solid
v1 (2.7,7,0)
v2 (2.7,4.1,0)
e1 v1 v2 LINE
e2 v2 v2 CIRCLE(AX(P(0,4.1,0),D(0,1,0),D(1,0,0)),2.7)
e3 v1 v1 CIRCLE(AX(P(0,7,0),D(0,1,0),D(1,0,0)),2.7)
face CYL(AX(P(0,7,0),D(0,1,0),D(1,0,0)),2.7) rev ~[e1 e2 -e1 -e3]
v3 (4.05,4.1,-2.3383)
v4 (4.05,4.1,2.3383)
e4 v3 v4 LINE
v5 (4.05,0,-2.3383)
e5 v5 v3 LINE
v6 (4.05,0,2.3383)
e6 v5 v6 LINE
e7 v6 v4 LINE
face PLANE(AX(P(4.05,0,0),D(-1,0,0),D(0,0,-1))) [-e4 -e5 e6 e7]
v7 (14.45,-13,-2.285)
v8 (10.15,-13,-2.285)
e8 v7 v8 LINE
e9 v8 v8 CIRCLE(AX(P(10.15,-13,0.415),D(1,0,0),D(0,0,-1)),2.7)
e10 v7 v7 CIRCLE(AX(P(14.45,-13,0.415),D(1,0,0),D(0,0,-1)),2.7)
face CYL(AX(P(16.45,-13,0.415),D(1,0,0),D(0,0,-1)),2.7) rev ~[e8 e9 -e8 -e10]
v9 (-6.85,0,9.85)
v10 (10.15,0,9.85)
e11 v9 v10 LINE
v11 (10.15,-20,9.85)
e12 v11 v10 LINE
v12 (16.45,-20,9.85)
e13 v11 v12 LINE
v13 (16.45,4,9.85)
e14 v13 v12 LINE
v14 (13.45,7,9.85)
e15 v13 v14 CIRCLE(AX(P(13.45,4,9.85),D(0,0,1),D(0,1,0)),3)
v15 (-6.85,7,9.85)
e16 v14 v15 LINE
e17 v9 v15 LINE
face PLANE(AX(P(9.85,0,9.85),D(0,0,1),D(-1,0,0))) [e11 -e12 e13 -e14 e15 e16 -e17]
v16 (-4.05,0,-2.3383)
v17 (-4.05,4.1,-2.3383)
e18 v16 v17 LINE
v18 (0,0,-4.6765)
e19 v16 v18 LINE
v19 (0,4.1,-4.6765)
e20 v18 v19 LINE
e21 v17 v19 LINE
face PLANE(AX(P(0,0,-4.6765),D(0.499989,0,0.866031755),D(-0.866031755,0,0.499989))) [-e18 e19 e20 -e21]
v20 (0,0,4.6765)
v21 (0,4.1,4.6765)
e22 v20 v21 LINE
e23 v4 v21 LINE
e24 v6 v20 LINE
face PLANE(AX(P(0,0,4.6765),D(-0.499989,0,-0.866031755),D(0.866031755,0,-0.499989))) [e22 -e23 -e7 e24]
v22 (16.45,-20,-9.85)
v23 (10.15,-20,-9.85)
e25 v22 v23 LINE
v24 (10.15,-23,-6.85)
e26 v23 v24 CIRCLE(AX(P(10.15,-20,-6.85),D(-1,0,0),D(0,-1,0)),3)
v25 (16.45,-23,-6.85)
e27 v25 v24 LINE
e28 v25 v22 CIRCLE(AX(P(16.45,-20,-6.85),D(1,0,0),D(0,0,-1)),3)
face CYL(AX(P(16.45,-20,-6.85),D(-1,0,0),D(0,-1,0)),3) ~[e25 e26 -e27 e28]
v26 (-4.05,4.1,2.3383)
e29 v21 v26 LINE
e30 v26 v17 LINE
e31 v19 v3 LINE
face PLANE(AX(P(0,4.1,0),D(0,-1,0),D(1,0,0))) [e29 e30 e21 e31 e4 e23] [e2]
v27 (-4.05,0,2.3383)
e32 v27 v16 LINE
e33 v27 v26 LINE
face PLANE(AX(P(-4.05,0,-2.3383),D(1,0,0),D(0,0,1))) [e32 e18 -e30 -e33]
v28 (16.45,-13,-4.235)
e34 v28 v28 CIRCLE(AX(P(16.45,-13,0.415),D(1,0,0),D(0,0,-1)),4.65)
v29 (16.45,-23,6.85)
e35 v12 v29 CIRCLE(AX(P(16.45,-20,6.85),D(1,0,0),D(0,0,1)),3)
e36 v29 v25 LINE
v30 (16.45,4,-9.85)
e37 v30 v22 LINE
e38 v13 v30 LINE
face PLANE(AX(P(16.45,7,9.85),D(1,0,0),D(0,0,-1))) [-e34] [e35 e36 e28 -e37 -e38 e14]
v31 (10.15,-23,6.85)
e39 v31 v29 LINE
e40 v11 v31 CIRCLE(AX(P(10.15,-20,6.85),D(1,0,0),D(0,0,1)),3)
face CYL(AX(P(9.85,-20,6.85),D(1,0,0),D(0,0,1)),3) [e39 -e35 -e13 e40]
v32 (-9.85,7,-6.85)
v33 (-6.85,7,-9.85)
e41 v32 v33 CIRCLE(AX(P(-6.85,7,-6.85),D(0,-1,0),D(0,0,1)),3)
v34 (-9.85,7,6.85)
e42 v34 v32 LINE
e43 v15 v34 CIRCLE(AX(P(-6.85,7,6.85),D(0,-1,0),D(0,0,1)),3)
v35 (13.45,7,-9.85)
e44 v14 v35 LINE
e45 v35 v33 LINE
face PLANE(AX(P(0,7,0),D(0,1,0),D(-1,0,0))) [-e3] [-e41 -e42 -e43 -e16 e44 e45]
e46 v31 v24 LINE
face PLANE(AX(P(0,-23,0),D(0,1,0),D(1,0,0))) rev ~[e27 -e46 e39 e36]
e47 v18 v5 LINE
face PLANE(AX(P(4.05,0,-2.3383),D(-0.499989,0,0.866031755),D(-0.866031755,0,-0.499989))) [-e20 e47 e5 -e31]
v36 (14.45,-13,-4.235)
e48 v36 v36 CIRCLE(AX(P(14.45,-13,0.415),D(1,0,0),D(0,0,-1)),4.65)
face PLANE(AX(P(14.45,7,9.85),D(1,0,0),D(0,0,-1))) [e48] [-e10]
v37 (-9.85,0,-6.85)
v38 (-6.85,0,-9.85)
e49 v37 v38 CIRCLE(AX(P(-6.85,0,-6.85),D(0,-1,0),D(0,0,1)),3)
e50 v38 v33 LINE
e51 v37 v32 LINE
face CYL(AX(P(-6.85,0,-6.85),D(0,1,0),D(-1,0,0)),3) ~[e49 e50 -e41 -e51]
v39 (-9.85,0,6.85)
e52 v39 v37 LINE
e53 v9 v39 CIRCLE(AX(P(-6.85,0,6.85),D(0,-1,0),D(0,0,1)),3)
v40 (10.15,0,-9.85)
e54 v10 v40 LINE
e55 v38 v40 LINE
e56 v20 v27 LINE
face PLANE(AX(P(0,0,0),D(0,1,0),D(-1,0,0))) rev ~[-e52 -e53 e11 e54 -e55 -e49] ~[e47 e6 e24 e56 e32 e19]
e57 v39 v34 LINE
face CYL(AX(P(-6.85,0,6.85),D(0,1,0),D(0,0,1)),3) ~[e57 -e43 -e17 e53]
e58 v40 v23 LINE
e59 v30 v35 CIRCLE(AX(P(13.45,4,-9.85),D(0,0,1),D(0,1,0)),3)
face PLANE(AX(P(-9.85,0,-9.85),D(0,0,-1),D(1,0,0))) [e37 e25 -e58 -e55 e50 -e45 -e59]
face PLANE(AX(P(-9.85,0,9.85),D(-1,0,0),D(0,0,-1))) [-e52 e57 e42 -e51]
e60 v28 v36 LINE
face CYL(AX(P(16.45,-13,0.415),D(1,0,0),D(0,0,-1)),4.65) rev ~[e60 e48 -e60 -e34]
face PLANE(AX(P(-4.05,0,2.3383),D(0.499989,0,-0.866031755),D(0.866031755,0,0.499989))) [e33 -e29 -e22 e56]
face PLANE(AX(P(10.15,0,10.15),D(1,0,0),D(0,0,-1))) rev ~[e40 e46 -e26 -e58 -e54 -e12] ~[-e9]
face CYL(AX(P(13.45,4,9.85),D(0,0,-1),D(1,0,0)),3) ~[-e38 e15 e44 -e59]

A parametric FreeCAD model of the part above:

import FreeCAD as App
import Part
import Sketcher

V = App.Vector
Q = App.Units.Quantity


def edges_at(feature, points):
    """Names of the edges that pass closest to the given points."""
    edges = feature.Shape.Edges
    near = lambda p: min(range(len(edges)), key=lambda i: edges[i].distToShape(Part.Vertex(*p))[0])
    return sorted({f"Edge{near(p) + 1}" for p in points})

doc = App.newDocument("Part")
body = doc.addObject("PartDesign::Body", "Body")

sketch1 = body.newObject("Sketcher::SketchObject", "Sketch")
sketch1.AttachmentSupport = (doc.getObject("XZ_Plane"), [""])
sketch1.MapMode = "FlatFace"
sketch1.addGeometry([
    Part.LineSegment(V(-10, 10, 0), V(10, 10, 0)),
    Part.LineSegment(V(10, 10, 0), V(10, -10, 0)),
    Part.LineSegment(V(10, -10, 0), V(-10, -10, 0)),
    Part.LineSegment(V(-10, -10, 0), V(-10, 10, 0)),
], False)
sketch1.addConstraint([
    Sketcher.Constraint("Coincident", 0, 2, 1, 1),
    Sketcher.Constraint("Coincident", 1, 2, 2, 1),
    Sketcher.Constraint("Coincident", 2, 2, 3, 1),
    Sketcher.Constraint("Coincident", 3, 2, 0, 1),
    Sketcher.Constraint("Horizontal", 0),
    Sketcher.Constraint("Vertical", 1),
    Sketcher.Constraint("Horizontal", 2),
    Sketcher.Constraint("Vertical", 3),
    Sketcher.Constraint("Symmetric", 0, 2, 2, 2, -1, 1),
    Sketcher.Constraint("Equal", 2, 1),
    Sketcher.Constraint("DistanceX", 0, 1, 0, 2, 19.7),
])
pad1 = body.newObject("PartDesign::Pad", "Pad")
pad1.Profile = sketch1
pad1.Length = 7
pad1.Reversed = True

sketch2 = body.newObject("Sketcher::SketchObject", "Sketch001")
sketch2.AttachmentSupport = (doc.getObject("XZ_Plane"), [""])
sketch2.MapMode = "FlatFace"
sketch2.AttachmentOffset = App.Placement(V(0, 0, -7), App.Rotation())
sketch2.addGeometry([
    Part.LineSegment(V(10, -10, 0), V(10, 10, 0)),
    Part.LineSegment(V(10, 10, 0), V(16, 10, 0)),
    Part.LineSegment(V(16, 10, 0), V(16, -10, 0)),
    Part.LineSegment(V(16, -10, 0), V(10, -10, 0)),
], False)
sketch2.addConstraint([
    Sketcher.Constraint("Coincident", 0, 2, 1, 1),
    Sketcher.Constraint("Coincident", 1, 2, 2, 1),
    Sketcher.Constraint("Coincident", 2, 2, 3, 1),
    Sketcher.Constraint("Coincident", 3, 2, 0, 1),
    Sketcher.Constraint("Vertical", 0),
    Sketcher.Constraint("Horizontal", 1),
    Sketcher.Constraint("Vertical", 2),
    Sketcher.Constraint("Horizontal", 3),
    Sketcher.Constraint("DistanceX", 1, 1, 1, 2, 6.6),
    Sketcher.Constraint("DistanceY", 0, 1, 0, 2, 19.7),
    Sketcher.Constraint("DistanceX", -1, 1, 0, 2, 9.85),
    Sketcher.Constraint("DistanceY", -1, 1, 0, 2, 9.85),
])
pad2 = body.newObject("PartDesign::Pad", "Pad001")
pad2.Profile = sketch2
pad2.Length = 30

sketch3 = body.newObject("Sketcher::SketchObject", "Sketch002")
sketch3.AttachmentSupport = (doc.getObject("YZ_Plane"), [""])
sketch3.MapMode = "FlatFace"
sketch3.AttachmentOffset = App.Placement(V(0, 0, 16.45), App.Rotation())
sketch3.addGeometry(Part.Circle(V(-13, 0.4, 0), V(0, 0, 1), 2.7), False)
sketch3.addConstraint([
    Sketcher.Constraint("Diameter", 0, 5.4),
    Sketcher.Constraint("DistanceX", 0, 3, -1, 1, 13.0),
    Sketcher.Constraint("DistanceY", -1, 1, 0, 3, 0.415),
])
pocket1 = body.newObject("PartDesign::Pocket", "Pocket")
pocket1.Profile = sketch3
pocket1.Length = 20

sketch4 = body.newObject("Sketcher::SketchObject", "Sketch003")
sketch4.AttachmentSupport = (doc.getObject("YZ_Plane"), [""])
sketch4.MapMode = "FlatFace"
sketch4.AttachmentOffset = App.Placement(V(0, 0, 16.45), App.Rotation())
sketch4.addGeometry(Part.Circle(V(-13, 0.4, 0), V(0, 0, 1), 4.7), False)
sketch4.addConstraint([
    Sketcher.Constraint("Diameter", 0, 9.3),
    Sketcher.Constraint("DistanceX", 0, 3, -1, 1, 13.0),
    Sketcher.Constraint("DistanceY", -1, 1, 0, 3, 0.415),
])
pocket2 = body.newObject("PartDesign::Pocket", "Pocket001")
pocket2.Profile = sketch4
pocket2.Length = 2

sketch5 = body.newObject("Sketcher::SketchObject", "Sketch004")
sketch5.AttachmentSupport = (doc.getObject("XZ_Plane"), [""])
sketch5.MapMode = "FlatFace"
sketch5.AttachmentOffset = App.Placement(V(0, 0, -7), App.Rotation())
sketch5.addGeometry(Part.Circle(V(0, 0, 0), V(0, 0, 1), 2.7), False)
sketch5.addConstraint([
    Sketcher.Constraint("Coincident", 0, 3, -1, 1),
    Sketcher.Constraint("Diameter", 0, 5.4),
])
pocket3 = body.newObject("PartDesign::Pocket", "Pocket002")
pocket3.Profile = sketch5
pocket3.Type = "ThroughAll"
pocket3.Reversed = True

sketch6 = body.newObject("Sketcher::SketchObject", "Sketch005")
sketch6.AttachmentSupport = (doc.getObject("XZ_Plane"), [""])
sketch6.MapMode = "FlatFace"
sketch6.addGeometry([
    Part.LineSegment(V(4, -2.3, 0), V(4, 2.3, 0)),
    Part.LineSegment(V(4, 2.3, 0), V(0, 4.7, 0)),
    Part.LineSegment(V(0, 4.7, 0), V(-4, 2.3, 0)),
    Part.LineSegment(V(-4, 2.3, 0), V(-4, -2.3, 0)),
    Part.LineSegment(V(-4, -2.3, 0), V(0, -4.7, 0)),
    Part.LineSegment(V(0, -4.7, 0), V(4, -2.3, 0)),
], False)
sketch6.addConstraint([
    Sketcher.Constraint("Coincident", 0, 2, 1, 1),
    Sketcher.Constraint("Coincident", 1, 2, 2, 1),
    Sketcher.Constraint("Coincident", 2, 2, 3, 1),
    Sketcher.Constraint("Coincident", 3, 2, 4, 1),
    Sketcher.Constraint("Coincident", 4, 2, 5, 1),
    Sketcher.Constraint("Coincident", 5, 2, 0, 1),
    Sketcher.Constraint("Vertical", 0),
    Sketcher.Constraint("Vertical", 3),
    Sketcher.Constraint("Symmetric", 0, 2, 3, 2, -1, 1),
    Sketcher.Constraint("Symmetric", 1, 2, 4, 2, -1, 1),
    Sketcher.Constraint("PointOnObject", 1, 2, -2),
    Sketcher.Constraint("Parallel", 2, 5),
    Sketcher.Constraint("Horizontal", 0, 2, 2, 2),
    Sketcher.Constraint("DistanceX", 2, 2, 0, 2, 8.1),
    Sketcher.Constraint("Angle", 1, Q("150.0007 deg")),
    Sketcher.Constraint("DistanceY", 0, 1, 0, 2, 4.6766),
])
pocket4 = body.newObject("PartDesign::Pocket", "Pocket003")
pocket4.Profile = sketch6
pocket4.Length = 4.1
doc.recompute()

fillet = body.newObject("PartDesign::Fillet", "Fillet")
fillet.Base = (pocket4, edges_at(pocket4, [(16.45, 7, 0), (13.15, -23, 9.85), (13.15, -23, -9.85)]))
fillet.Radius = 3

sketch7 = body.newObject("Sketcher::SketchObject", "Sketch006")
sketch7.AttachmentSupport = (doc.getObject("XZ_Plane"), [""])
sketch7.MapMode = "FlatFace"
sketch7.addGeometry([
    Part.LineSegment(V(-10, -10, 0), V(10, -10, 0)),
    Part.LineSegment(V(10, -10, 0), V(10, 10, 0)),
    Part.LineSegment(V(10, 10, 0), V(-10, 10, 0)),
    Part.LineSegment(V(-10, 10, 0), V(-10, -10, 0)),
], False)
sketch7.addConstraint([
    Sketcher.Constraint("Coincident", 0, 2, 1, 1),
    Sketcher.Constraint("Coincident", 1, 2, 2, 1),
    Sketcher.Constraint("Coincident", 2, 2, 3, 1),
    Sketcher.Constraint("Coincident", 3, 2, 0, 1),
    Sketcher.Constraint("Horizontal", 0),
    Sketcher.Constraint("Vertical", 1),
    Sketcher.Constraint("Horizontal", 2),
    Sketcher.Constraint("Vertical", 3),
    Sketcher.Constraint("Symmetric", 0, 2, 2, 2, -1, 1),
    Sketcher.Constraint("Equal", 2, 1),
    Sketcher.Constraint("DistanceX", 0, 1, 0, 2, 20.3),
])
pocket5 = body.newObject("PartDesign::Pocket", "Pocket004")
pocket5.Profile = sketch7
pocket5.Type = "ThroughAll"
pocket5.Reversed = True
doc.recompute()

fillet2 = body.newObject("PartDesign::Fillet", "Fillet001")
fillet2.Base = (pocket5, edges_at(pocket5, [(-9.85, 3.5, 9.85), (-9.85, 3.5, -9.85)]))
fillet2.Radius = 3

doc.recompute()
